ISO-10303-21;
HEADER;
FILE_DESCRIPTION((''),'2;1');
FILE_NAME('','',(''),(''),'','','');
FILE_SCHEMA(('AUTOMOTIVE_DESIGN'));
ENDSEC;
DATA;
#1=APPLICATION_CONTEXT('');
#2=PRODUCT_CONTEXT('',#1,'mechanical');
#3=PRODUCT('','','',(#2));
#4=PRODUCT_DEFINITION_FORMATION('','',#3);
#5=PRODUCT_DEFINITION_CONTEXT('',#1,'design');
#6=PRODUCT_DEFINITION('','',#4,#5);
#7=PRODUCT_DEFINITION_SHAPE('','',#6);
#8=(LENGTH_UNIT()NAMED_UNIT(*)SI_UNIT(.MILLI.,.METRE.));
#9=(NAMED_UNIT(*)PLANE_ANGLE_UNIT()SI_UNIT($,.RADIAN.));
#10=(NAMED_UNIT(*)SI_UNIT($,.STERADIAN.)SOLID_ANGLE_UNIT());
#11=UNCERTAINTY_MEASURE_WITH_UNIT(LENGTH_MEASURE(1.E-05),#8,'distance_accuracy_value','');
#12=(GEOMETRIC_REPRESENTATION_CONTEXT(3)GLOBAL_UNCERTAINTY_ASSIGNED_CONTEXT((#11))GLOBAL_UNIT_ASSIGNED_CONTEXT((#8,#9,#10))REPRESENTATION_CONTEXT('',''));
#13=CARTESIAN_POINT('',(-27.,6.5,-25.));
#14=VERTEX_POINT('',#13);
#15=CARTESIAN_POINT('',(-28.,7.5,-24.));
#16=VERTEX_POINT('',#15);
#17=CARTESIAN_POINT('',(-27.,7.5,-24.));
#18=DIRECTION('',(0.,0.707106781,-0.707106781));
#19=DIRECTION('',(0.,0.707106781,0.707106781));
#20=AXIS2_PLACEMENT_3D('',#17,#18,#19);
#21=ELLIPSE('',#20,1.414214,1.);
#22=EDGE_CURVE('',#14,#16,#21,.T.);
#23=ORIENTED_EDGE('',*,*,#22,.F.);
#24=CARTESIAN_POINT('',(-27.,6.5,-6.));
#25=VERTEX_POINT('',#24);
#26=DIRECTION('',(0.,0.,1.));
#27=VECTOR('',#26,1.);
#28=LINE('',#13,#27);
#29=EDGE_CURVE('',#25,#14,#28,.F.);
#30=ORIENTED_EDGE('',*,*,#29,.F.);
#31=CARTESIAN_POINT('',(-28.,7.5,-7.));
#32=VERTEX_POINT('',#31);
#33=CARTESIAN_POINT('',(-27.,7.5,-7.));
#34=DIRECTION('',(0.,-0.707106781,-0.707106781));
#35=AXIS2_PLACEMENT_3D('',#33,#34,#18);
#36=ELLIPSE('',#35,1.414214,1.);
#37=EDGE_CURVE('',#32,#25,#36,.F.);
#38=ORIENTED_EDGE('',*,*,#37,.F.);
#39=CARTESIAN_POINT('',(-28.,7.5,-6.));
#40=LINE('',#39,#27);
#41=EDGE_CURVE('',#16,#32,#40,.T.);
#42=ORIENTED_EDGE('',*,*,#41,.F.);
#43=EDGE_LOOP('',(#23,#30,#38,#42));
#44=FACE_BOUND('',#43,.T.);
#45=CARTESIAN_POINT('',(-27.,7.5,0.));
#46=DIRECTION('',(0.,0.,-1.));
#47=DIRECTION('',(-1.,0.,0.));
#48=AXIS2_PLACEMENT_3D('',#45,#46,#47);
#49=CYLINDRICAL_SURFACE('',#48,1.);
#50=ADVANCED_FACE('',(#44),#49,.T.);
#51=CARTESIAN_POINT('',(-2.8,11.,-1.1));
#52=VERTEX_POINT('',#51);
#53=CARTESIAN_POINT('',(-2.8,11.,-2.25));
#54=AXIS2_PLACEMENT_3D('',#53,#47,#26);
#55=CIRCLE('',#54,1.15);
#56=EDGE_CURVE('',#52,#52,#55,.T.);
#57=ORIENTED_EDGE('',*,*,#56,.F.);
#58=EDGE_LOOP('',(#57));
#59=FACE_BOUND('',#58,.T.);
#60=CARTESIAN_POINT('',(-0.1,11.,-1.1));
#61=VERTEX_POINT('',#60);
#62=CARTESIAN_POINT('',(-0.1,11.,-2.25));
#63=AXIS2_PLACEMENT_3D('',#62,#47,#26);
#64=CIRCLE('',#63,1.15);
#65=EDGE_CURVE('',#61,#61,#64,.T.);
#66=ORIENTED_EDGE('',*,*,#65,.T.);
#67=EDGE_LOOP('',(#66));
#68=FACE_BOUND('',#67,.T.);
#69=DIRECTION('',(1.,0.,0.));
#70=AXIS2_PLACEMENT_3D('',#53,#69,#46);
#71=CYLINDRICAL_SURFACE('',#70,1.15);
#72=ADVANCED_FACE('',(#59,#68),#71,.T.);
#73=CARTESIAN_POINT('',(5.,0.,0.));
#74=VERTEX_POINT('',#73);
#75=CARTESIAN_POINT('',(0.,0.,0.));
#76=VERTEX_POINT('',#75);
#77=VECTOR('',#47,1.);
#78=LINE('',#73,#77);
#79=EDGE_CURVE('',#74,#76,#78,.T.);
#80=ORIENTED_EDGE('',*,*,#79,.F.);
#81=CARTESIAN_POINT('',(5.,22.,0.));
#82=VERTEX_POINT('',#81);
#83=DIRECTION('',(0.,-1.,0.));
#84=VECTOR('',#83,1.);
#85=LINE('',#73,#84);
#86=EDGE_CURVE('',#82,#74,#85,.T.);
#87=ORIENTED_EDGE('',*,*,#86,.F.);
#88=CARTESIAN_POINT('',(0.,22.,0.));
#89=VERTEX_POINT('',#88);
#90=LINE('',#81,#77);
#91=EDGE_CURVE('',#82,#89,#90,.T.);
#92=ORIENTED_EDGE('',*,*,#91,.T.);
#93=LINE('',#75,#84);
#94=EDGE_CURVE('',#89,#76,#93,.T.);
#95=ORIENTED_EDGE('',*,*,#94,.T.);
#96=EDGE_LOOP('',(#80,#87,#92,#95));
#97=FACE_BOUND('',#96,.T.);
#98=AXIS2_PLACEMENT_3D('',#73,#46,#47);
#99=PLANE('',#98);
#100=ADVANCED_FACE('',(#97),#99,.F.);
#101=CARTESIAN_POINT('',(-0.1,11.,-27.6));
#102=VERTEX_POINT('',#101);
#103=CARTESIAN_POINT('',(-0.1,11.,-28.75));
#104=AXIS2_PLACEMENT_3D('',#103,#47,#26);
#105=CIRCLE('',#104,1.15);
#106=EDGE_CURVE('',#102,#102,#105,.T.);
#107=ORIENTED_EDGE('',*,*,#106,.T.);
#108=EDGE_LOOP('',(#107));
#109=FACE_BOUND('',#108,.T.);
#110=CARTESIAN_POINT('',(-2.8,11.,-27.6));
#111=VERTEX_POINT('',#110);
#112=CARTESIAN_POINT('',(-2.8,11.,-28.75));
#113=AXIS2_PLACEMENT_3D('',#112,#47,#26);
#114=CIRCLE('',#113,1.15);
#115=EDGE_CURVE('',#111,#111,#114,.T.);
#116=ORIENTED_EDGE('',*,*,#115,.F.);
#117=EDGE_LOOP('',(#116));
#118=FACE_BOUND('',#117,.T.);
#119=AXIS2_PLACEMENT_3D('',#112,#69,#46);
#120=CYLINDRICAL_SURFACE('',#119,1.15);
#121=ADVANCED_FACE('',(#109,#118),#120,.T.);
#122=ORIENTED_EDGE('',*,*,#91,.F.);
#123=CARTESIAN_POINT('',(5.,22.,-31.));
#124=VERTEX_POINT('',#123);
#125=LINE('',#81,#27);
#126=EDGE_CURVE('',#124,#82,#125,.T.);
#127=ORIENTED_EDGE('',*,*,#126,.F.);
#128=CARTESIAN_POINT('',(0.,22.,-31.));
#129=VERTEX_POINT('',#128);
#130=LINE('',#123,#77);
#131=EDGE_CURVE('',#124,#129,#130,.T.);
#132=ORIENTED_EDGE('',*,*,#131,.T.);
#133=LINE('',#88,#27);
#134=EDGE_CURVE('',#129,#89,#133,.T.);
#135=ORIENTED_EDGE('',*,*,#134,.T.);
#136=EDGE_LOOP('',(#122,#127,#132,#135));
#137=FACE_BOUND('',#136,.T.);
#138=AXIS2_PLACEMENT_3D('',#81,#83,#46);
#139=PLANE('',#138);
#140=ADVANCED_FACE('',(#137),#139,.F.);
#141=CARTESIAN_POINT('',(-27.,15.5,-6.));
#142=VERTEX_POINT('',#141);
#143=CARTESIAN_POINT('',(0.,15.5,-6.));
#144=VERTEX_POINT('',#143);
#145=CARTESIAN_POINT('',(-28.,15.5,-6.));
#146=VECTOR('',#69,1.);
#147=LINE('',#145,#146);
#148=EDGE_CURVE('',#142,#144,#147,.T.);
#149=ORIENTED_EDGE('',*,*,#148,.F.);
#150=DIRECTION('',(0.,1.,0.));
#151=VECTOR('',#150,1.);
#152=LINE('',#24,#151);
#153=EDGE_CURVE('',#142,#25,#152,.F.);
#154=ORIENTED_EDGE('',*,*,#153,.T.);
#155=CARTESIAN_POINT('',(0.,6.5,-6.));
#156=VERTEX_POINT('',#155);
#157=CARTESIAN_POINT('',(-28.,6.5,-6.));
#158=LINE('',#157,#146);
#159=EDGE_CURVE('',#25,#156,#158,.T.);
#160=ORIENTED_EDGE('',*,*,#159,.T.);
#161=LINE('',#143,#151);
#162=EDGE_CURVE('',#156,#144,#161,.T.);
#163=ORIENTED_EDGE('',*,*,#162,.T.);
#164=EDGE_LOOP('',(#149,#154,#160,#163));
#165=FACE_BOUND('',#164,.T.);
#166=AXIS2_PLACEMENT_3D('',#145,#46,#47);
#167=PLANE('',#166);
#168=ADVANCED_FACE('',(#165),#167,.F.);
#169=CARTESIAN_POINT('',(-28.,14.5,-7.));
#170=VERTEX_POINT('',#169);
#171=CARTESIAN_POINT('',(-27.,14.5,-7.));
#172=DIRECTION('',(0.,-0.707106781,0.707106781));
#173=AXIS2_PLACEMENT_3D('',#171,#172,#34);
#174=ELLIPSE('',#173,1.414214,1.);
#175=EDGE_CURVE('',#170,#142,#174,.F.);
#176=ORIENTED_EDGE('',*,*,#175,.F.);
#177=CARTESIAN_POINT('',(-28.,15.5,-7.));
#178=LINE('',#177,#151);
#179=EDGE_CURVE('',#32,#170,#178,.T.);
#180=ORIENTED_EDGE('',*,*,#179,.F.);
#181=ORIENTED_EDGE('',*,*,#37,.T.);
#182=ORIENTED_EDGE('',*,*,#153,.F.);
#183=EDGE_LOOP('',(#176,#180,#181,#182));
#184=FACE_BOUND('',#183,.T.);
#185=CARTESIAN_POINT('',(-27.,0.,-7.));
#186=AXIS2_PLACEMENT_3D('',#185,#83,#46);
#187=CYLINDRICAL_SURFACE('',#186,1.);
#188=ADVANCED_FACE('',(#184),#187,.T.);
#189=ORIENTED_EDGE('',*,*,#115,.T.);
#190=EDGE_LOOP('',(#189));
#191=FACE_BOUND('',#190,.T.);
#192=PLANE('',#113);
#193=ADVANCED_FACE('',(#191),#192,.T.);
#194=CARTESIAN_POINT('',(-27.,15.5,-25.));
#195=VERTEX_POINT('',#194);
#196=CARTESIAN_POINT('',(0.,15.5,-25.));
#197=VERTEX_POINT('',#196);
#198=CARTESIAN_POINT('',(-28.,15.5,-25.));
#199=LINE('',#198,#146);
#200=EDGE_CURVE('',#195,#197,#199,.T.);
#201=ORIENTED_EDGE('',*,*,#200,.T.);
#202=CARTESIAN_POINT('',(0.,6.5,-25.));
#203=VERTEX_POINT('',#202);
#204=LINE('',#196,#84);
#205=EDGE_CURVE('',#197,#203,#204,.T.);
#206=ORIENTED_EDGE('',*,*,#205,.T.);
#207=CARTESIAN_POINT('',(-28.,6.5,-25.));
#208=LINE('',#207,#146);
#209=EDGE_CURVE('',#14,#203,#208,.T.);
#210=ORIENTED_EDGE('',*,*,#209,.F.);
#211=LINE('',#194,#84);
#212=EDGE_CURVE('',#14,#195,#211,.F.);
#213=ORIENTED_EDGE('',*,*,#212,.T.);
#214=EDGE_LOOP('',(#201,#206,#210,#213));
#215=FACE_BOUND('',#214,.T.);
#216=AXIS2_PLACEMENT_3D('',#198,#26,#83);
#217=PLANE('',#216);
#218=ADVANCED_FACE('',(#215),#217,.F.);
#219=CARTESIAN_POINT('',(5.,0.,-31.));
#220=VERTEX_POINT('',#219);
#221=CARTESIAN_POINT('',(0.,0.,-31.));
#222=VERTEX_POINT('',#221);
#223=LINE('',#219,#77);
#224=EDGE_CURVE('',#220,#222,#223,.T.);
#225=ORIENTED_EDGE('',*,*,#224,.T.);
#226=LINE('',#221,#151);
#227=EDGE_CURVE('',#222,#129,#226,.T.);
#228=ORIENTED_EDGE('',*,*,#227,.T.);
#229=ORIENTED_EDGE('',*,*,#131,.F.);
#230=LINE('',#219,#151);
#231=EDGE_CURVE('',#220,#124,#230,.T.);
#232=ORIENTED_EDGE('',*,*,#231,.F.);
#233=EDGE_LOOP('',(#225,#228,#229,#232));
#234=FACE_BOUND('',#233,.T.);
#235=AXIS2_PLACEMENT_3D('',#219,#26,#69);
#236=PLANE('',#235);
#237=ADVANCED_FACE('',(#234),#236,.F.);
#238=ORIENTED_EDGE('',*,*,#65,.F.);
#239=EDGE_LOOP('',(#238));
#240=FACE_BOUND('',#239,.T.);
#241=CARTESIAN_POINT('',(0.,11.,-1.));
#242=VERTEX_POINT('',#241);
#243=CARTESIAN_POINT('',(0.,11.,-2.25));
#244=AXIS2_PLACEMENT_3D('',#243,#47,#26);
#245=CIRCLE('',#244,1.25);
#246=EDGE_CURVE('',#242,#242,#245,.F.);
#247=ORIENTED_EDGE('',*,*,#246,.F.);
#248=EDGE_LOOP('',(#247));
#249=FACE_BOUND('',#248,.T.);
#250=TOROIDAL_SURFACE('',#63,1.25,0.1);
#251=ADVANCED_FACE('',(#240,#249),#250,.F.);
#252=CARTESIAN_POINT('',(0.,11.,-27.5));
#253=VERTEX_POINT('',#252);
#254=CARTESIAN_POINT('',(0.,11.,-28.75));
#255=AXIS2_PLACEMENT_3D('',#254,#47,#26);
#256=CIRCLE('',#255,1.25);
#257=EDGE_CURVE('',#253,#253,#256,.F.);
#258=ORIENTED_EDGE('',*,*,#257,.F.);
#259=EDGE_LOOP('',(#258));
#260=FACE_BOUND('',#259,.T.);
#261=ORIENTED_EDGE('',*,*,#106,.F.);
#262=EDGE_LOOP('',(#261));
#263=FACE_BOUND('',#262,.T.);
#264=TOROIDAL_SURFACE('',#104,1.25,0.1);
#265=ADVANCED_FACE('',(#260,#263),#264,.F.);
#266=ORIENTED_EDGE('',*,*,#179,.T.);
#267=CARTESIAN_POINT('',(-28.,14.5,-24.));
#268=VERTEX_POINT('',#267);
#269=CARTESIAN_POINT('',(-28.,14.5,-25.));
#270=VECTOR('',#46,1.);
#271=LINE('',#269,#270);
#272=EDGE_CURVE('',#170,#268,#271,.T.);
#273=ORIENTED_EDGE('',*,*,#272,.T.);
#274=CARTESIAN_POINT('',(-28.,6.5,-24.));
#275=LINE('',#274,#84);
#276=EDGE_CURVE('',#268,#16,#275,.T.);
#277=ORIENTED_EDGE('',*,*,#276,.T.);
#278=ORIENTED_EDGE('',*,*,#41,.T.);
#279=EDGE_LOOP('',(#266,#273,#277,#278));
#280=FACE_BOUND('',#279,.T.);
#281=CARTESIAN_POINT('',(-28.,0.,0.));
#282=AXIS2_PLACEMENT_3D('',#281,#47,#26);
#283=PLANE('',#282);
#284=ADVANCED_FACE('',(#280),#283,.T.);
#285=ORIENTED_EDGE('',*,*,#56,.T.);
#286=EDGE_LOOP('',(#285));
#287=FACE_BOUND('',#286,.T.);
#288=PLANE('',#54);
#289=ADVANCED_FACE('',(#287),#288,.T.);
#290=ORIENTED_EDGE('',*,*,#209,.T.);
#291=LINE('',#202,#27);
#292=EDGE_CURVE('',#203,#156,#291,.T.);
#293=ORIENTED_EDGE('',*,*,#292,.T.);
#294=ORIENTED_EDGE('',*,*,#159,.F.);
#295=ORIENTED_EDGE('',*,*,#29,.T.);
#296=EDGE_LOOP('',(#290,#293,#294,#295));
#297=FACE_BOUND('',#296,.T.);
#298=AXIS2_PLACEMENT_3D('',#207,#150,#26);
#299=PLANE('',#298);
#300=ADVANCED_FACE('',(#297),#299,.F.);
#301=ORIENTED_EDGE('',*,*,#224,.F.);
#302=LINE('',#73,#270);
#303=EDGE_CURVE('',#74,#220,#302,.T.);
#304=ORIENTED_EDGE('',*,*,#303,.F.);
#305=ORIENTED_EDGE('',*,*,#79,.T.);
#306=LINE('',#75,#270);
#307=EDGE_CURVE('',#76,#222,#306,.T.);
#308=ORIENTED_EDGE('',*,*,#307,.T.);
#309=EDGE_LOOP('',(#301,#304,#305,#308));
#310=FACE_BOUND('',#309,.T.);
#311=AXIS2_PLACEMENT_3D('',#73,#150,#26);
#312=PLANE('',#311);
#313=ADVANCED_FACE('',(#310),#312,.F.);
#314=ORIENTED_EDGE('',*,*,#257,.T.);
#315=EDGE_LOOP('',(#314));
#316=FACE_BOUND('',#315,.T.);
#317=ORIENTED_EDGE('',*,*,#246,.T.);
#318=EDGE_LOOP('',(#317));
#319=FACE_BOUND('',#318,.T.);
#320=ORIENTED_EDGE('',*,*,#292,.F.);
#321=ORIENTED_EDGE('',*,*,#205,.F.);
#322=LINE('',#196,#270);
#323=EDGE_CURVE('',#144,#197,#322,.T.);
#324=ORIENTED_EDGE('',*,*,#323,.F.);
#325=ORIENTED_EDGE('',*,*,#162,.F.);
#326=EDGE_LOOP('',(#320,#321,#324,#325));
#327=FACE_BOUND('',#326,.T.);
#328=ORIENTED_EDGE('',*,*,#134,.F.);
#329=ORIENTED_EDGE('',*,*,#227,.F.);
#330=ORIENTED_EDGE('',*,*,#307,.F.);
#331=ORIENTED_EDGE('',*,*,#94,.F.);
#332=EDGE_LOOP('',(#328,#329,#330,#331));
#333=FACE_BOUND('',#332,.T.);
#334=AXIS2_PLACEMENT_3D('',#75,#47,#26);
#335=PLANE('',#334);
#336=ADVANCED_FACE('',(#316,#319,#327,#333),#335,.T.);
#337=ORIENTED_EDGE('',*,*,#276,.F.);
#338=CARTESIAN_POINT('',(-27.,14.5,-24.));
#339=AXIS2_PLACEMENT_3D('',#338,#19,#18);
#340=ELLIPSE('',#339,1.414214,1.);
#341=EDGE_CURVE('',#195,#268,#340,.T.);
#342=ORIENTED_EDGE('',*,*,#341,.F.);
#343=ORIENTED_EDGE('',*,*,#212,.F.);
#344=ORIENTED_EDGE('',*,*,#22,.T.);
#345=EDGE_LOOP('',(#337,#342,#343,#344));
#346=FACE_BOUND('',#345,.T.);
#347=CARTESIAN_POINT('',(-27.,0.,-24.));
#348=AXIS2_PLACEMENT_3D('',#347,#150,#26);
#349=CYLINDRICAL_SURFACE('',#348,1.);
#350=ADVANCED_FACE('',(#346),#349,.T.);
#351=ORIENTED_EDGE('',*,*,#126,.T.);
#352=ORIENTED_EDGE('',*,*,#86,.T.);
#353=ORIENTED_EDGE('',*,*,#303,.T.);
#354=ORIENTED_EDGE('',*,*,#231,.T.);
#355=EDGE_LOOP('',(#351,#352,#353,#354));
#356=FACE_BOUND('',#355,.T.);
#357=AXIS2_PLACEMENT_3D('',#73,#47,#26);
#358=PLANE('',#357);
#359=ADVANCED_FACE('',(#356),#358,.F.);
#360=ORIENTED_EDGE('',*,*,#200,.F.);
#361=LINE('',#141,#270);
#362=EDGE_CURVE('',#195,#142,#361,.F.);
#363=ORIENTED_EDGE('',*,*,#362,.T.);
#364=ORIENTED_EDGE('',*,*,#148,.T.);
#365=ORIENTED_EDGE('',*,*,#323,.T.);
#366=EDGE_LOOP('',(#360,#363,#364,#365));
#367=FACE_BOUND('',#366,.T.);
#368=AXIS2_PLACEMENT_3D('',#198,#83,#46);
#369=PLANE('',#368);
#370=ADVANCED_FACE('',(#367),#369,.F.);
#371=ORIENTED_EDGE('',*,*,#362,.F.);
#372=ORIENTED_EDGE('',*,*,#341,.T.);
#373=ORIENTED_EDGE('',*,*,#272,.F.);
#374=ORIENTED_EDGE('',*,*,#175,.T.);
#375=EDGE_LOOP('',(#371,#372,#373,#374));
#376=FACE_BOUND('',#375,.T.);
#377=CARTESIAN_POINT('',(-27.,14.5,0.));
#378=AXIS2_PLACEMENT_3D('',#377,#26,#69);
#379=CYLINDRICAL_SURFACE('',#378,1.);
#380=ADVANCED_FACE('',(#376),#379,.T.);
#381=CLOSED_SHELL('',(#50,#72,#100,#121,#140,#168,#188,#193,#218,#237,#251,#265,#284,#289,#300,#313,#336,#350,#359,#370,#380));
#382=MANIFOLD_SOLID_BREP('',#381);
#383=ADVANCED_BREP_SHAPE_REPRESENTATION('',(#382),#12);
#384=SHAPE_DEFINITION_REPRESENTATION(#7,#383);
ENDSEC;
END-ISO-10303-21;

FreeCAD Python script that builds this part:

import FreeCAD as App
import Part
import Sketcher
from FreeCAD import Vector


def edges_at(feature, points):
    """Names of the edges that pass closest to the given points."""
    edges = feature.Shape.Edges
    near = lambda p: min(range(len(edges)), key=lambda i: edges[i].distToShape(Part.Vertex(*p))[0])
    return sorted({f"Edge{near(p) + 1}" for p in points})


def add_polygon(sketch, points):
    """Adds a closed chain of lines whose ends are joined by coincident constraints."""
    first, n = sketch.GeometryCount, len(points)
    for a, b in zip(points, points[1:] + points[:1]):
        sketch.addGeometry(Part.LineSegment(App.Vector(*a, 0), App.Vector(*b, 0)), False)
    for i in range(n):
        sketch.addConstraint(Sketcher.Constraint("Coincident", first + i, 2, first + (i + 1) % n, 1))

doc = App.newDocument("Part")
body = doc.addObject("PartDesign::Body", "Body")

sketch1 = doc.addObject("Sketcher::SketchObject", "Sketch")
body.addObject(sketch1)
sketch1.AttachmentSupport = (doc.YZ_Plane, [""])
sketch1.MapMode = "FlatFace"
add_polygon(sketch1, [(22, 0), (0, 0), (0, -31), (22, -31)])
sketch1.addConstraint([
    Sketcher.Constraint("Horizontal", 0),
    Sketcher.Constraint("Vertical", 1),
    Sketcher.Constraint("Horizontal", 2),
    Sketcher.Constraint("Vertical", 3),
    Sketcher.Constraint("Coincident", 0, 2, -1, 1),
    Sketcher.Constraint("DistanceX", 0, 2, 0, 1, 22.0),
    Sketcher.Constraint("DistanceY", 1, 2, 1, 1, 31.0),
])
pad1 = doc.addObject("PartDesign::Pad", "Pad")
body.addObject(pad1)
pad1.Profile = sketch1
pad1.Length = 5

sketch2 = doc.addObject("Sketcher::SketchObject", "Sketch001")
body.addObject(sketch2)
sketch2.AttachmentSupport = (doc.YZ_Plane, [""])
sketch2.MapMode = "FlatFace"
add_polygon(sketch2, [(15.5, -25), (6.5, -25), (6.5, -6), (15.5, -6)])
sketch2.addConstraint([
    Sketcher.Constraint("Horizontal", 0),
    Sketcher.Constraint("Vertical", 1),
    Sketcher.Constraint("Horizontal", 2),
    Sketcher.Constraint("Vertical", 3),
    Sketcher.Constraint("DistanceX", 0, 2, 0, 1, 9.0),
    Sketcher.Constraint("DistanceY", 1, 1, 1, 2, 19.0),
    Sketcher.Constraint("DistanceY", 0, 2, -1, 1, 25.0),
    Sketcher.Constraint("DistanceX", -1, 1, 0, 2, 6.5),
])
pad2 = doc.addObject("PartDesign::Pad", "Pad001")
body.addObject(pad2)
pad2.Profile = sketch2
pad2.Length = 28
pad2.Reversed = True
doc.recompute()

fillet = doc.addObject("PartDesign::Fillet", "Fillet")
body.addObject(fillet)
fillet.Base = (pad2, edges_at(pad2, [
    (-28, 11, -25),
    (-28, 6.5, -15.5),
    (-28, 11, -6),
    (-28, 15.5, -15.5),
]))
fillet.Radius = 1

sketch3 = doc.addObject("Sketcher::SketchObject", "Sketch002")
body.addObject(sketch3)
sketch3.AttachmentSupport = (doc.YZ_Plane, [""])
sketch3.MapMode = "FlatFace"
sketch3.addGeometry(Part.Circle(Vector(11, -2.25, 0), Vector(0, 0, 1), 1.15), False)
sketch3.addConstraint([
    Sketcher.Constraint("Diameter", 0, 2.3),
    Sketcher.Constraint("DistanceX", -1, 1, 0, 3, 11.0),
    Sketcher.Constraint("DistanceY", 0, 3, -1, 1, 2.25),
])
pad3 = doc.addObject("PartDesign::Pad", "Pad002")
body.addObject(pad3)
pad3.Profile = sketch3
pad3.Length = 2.8
pad3.Reversed = True
doc.recompute()

fillet2 = doc.addObject("PartDesign::Fillet", "Fillet001")
body.addObject(fillet2)
fillet2.Base = (pad3, edges_at(pad3, [(0, 11, -3.4)]))
fillet2.Radius = 0.1

sketch4 = doc.addObject("Sketcher::SketchObject", "Sketch003")
body.addObject(sketch4)
sketch4.AttachmentSupport = (doc.YZ_Plane, [""])
sketch4.MapMode = "FlatFace"
sketch4.addGeometry(Part.Circle(Vector(11, -28.75, 0), Vector(0, 0, 1), 1.15), False)
sketch4.addConstraint([
    Sketcher.Constraint("Diameter", 0, 2.3),
    Sketcher.Constraint("DistanceX", -1, 1, 0, 3, 11.0),
    Sketcher.Constraint("DistanceY", 0, 3, -1, 1, 28.75),
])
pad4 = doc.addObject("PartDesign::Pad", "Pad003")
body.addObject(pad4)
pad4.Profile = sketch4
pad4.Length = 2.8
pad4.Reversed = True
doc.recompute()

fillet3 = doc.addObject("PartDesign::Fillet", "Fillet002")
body.addObject(fillet3)
fillet3.Base = (pad4, edges_at(pad4, [(0, 11, -29.9)]))
fillet3.Radius = 0.1

doc.recompute()
